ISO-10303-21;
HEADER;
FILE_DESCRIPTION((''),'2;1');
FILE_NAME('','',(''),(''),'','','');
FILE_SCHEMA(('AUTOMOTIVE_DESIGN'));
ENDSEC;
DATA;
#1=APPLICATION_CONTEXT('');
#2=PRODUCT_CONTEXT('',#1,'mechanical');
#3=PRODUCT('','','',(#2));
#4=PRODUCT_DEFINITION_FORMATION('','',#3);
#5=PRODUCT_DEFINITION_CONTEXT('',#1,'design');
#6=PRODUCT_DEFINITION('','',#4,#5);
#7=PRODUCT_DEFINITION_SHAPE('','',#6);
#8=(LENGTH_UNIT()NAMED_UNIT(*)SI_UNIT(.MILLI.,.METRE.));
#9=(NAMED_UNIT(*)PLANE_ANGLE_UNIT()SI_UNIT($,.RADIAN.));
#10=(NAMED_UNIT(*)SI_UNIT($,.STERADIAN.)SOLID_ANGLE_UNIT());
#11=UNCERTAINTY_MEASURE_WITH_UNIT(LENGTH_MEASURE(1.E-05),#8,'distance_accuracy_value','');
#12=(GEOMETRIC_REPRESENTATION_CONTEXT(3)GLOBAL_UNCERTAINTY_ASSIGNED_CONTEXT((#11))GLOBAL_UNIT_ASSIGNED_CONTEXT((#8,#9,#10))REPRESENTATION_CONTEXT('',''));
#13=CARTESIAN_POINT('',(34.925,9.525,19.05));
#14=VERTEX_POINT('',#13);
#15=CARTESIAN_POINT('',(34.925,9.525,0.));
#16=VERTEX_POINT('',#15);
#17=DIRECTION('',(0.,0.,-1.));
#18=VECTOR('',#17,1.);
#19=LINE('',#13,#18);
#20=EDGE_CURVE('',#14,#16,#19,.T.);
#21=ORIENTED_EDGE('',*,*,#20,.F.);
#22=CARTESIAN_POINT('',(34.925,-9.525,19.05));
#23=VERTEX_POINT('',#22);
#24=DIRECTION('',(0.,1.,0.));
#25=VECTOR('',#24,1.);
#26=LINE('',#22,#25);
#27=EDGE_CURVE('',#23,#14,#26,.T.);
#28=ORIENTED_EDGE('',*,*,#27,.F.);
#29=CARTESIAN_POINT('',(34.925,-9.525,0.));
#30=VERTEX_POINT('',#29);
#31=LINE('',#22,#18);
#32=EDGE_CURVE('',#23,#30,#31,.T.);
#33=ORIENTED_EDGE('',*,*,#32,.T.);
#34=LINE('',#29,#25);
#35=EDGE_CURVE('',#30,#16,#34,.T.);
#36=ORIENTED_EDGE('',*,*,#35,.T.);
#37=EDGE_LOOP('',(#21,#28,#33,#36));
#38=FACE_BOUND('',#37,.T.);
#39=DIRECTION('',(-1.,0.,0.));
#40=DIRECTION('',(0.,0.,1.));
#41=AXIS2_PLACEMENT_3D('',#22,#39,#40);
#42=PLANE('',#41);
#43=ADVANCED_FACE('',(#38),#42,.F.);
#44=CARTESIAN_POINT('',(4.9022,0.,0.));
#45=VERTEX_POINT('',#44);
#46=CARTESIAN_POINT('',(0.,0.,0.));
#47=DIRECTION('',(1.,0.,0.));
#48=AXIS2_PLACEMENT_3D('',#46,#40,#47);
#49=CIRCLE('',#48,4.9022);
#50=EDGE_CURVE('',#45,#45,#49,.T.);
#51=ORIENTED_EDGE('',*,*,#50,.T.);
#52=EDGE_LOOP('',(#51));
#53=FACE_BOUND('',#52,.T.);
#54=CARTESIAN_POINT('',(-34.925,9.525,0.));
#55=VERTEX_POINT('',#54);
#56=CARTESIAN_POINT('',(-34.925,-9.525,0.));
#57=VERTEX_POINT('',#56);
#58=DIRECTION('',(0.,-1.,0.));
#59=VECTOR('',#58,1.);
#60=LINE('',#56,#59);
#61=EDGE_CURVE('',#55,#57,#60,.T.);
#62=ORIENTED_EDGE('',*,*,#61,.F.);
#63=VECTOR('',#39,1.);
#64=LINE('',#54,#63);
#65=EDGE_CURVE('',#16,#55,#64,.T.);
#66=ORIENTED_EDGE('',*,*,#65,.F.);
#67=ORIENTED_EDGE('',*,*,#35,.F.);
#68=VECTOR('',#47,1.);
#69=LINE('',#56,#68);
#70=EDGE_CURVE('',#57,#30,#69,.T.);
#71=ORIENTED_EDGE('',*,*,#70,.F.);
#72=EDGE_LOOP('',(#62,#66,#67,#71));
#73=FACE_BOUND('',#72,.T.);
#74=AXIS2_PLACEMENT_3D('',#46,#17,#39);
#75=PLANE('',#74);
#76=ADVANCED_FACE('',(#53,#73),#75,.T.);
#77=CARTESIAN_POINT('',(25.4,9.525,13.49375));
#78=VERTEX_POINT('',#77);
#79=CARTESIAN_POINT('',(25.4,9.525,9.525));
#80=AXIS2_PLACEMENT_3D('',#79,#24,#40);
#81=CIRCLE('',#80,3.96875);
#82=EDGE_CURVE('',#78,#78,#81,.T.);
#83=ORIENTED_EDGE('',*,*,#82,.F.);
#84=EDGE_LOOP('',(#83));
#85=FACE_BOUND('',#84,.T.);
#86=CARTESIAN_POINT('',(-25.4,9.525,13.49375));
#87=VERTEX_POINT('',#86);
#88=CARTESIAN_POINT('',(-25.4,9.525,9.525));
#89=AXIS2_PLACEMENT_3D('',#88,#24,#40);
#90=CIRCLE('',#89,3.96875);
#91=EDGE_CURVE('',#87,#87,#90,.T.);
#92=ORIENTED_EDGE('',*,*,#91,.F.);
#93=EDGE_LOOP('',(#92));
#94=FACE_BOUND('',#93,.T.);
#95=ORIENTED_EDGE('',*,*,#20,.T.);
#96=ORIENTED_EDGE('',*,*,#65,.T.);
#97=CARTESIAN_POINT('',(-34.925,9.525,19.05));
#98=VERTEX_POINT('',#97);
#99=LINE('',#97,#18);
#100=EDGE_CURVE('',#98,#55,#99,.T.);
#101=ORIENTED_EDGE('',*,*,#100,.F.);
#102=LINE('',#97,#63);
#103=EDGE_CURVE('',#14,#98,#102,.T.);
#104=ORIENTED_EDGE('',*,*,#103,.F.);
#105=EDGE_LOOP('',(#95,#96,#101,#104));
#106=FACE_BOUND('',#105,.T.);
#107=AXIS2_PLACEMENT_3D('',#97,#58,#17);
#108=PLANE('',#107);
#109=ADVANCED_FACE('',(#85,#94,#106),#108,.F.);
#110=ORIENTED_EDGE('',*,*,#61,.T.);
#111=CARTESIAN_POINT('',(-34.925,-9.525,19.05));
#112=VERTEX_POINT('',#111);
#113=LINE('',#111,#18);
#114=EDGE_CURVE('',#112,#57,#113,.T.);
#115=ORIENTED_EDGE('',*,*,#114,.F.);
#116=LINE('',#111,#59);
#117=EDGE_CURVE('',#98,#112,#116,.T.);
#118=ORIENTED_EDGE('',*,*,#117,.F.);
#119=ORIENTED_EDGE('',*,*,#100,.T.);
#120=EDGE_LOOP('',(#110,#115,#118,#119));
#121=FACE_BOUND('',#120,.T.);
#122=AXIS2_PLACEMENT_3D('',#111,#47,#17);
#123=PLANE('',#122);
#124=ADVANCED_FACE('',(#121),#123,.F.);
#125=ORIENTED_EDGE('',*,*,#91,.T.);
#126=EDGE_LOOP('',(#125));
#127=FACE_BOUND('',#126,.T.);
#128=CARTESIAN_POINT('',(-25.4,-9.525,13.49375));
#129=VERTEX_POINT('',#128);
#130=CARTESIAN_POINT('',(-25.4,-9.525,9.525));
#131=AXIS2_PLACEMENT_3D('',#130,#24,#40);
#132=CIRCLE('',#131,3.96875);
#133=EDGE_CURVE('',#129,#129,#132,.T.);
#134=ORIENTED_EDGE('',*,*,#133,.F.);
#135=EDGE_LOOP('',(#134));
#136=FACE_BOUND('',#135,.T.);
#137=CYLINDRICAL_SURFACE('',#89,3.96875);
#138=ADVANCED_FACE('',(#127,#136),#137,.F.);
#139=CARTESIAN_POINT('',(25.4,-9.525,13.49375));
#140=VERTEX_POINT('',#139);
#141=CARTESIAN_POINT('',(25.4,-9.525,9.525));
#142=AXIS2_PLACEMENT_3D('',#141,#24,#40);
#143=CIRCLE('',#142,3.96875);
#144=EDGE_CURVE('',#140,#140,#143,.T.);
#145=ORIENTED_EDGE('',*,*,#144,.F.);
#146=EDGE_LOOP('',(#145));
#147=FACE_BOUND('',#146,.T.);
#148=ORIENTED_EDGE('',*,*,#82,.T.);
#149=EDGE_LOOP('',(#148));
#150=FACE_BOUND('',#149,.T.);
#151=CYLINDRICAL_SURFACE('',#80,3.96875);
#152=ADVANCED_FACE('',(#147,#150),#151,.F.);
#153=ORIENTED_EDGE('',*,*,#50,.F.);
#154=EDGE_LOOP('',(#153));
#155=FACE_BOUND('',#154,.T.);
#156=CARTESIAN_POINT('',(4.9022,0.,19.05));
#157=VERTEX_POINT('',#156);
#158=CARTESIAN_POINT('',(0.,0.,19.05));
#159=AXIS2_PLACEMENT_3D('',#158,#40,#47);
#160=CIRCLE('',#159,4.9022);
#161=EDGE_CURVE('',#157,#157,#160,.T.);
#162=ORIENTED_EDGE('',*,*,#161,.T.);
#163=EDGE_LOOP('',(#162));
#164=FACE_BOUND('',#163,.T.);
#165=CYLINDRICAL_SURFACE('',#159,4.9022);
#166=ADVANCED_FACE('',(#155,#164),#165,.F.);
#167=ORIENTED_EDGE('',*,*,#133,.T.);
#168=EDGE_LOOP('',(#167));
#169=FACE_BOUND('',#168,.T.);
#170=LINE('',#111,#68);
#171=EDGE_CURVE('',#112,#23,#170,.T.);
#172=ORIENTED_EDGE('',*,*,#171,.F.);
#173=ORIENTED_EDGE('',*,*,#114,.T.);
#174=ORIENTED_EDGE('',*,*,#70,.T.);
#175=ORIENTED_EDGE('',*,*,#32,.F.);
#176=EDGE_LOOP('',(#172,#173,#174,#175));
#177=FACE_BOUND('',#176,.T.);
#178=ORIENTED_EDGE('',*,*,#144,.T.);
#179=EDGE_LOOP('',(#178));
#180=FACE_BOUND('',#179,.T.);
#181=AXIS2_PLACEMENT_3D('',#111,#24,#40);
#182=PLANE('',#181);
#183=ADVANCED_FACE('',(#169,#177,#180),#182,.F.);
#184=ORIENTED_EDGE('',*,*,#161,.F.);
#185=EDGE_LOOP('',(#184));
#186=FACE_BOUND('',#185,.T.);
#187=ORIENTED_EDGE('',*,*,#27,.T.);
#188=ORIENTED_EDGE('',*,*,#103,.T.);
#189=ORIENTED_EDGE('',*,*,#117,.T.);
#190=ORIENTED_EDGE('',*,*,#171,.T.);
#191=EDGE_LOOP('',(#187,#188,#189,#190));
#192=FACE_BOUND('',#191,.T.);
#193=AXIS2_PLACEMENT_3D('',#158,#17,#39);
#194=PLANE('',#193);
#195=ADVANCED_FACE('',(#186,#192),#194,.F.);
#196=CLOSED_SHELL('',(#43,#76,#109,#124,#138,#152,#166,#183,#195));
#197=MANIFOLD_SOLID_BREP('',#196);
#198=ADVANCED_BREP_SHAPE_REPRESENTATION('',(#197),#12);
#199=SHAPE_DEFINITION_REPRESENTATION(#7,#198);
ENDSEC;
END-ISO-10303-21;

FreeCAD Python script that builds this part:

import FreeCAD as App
import Part
import Sketcher
Q = App.Units.Quantity

doc = App.newDocument("Part")
body = doc.addObject("PartDesign::Body", "Body")

sketch1 = doc.addObject("Sketcher::SketchObject", "Sketch")
body.addObject(sketch1)
sketch1.AttachmentSupport = (doc.XY_Plane, [""])
sketch1.MapMode = "FlatFace"
sketch1.addGeometry([
    Part.LineSegment(App.Vector(-34.925, 9.525, 0), App.Vector(-34.925, -9.525, 0)),
    Part.LineSegment(App.Vector(-34.925, -9.525, 0), App.Vector(34.925, -9.525, 0)),
    Part.LineSegment(App.Vector(34.925, -9.525, 0), App.Vector(34.925, 9.525, 0)),
    Part.LineSegment(App.Vector(34.925, 9.525, 0), App.Vector(-34.925, 9.525, 0)),
], False)
sketch1.addConstraint([
    Sketcher.Constraint("Coincident", 0, 2, 1, 1),
    Sketcher.Constraint("Coincident", 1, 2, 2, 1),
    Sketcher.Constraint("Coincident", 2, 2, 3, 1),
    Sketcher.Constraint("Coincident", 3, 2, 0, 1),
    Sketcher.Constraint("Vertical", 0),
    Sketcher.Constraint("Horizontal", 1),
    Sketcher.Constraint("Vertical", 2),
    Sketcher.Constraint("Horizontal", 3),
    Sketcher.Constraint("Symmetric", 0, 2, 2, 2, -1, 1),
    Sketcher.Constraint("DistanceX", 1, 1, 1, 2, Q("2.75 in")),
    Sketcher.Constraint("DistanceY", 0, 2, 0, 1, Q("0.75 in")),
])
pad1 = doc.addObject("PartDesign::Pad", "Pad")
body.addObject(pad1)
pad1.Profile = sketch1
pad1.Length = Q("0.75 in")

sketch2 = doc.addObject("Sketcher::SketchObject", "Sketch001")
body.addObject(sketch2)
sketch2.AttachmentSupport = (doc.XY_Plane, [""])
sketch2.MapMode = "FlatFace"
sketch2.AttachmentOffset = App.Placement(App.Vector(0, 0, 0.75 * 25.4), App.Rotation())
sketch2.addGeometry(Part.Circle(App.Vector(0, 0, 0), App.Vector(0, 0, 1), 4.9022), False)
sketch2.addConstraint([
    Sketcher.Constraint("Coincident", 0, 3, -1, 1),
    Sketcher.Constraint("Diameter", 0, Q("0.386 in")),
])
doc.recompute()
hole = doc.addObject("PartDesign::Hole", "Hole")
body.addObject(hole)
hole.Profile = sketch2
hole.ThreadType = "None"
hole.Diameter = Q("0.386 in")
hole.DepthType = "ThroughAll"

sketch3 = doc.addObject("Sketcher::SketchObject", "Sketch002")
body.addObject(sketch3)
sketch3.AttachmentSupport = (doc.XZ_Plane, [""])
sketch3.MapMode = "FlatFace"
sketch3.AttachmentOffset = App.Placement(App.Vector(0, 0, -0.375 * 25.4), App.Rotation())
sketch3.addGeometry([
    Part.Circle(App.Vector(-25.4, 9.525, 0), App.Vector(0, 0, 1), 3.96875),
    Part.Circle(App.Vector(25.4, 9.525, 0), App.Vector(0, 0, 1), 3.96875),
], False)
sketch3.addConstraint([
    Sketcher.Constraint("Equal", 0, 1),
    Sketcher.Constraint("Symmetric", 0, 3, 1, 3, -2),
    Sketcher.Constraint("Diameter", 0, Q("0.3125 in")),
    Sketcher.Constraint("DistanceX", 0, 3, -1, 1, Q("1 in")),
    Sketcher.Constraint("DistanceY", -1, 1, 0, 3, Q("0.375 in")),
])
doc.recompute()
hole2 = doc.addObject("PartDesign::Hole", "Hole001")
body.addObject(hole2)
hole2.Profile = sketch3
hole2.ThreadType = "None"
hole2.Diameter = Q("0.3125 in")
hole2.DepthType = "ThroughAll"
hole2.Reversed = True

doc.recompute()
